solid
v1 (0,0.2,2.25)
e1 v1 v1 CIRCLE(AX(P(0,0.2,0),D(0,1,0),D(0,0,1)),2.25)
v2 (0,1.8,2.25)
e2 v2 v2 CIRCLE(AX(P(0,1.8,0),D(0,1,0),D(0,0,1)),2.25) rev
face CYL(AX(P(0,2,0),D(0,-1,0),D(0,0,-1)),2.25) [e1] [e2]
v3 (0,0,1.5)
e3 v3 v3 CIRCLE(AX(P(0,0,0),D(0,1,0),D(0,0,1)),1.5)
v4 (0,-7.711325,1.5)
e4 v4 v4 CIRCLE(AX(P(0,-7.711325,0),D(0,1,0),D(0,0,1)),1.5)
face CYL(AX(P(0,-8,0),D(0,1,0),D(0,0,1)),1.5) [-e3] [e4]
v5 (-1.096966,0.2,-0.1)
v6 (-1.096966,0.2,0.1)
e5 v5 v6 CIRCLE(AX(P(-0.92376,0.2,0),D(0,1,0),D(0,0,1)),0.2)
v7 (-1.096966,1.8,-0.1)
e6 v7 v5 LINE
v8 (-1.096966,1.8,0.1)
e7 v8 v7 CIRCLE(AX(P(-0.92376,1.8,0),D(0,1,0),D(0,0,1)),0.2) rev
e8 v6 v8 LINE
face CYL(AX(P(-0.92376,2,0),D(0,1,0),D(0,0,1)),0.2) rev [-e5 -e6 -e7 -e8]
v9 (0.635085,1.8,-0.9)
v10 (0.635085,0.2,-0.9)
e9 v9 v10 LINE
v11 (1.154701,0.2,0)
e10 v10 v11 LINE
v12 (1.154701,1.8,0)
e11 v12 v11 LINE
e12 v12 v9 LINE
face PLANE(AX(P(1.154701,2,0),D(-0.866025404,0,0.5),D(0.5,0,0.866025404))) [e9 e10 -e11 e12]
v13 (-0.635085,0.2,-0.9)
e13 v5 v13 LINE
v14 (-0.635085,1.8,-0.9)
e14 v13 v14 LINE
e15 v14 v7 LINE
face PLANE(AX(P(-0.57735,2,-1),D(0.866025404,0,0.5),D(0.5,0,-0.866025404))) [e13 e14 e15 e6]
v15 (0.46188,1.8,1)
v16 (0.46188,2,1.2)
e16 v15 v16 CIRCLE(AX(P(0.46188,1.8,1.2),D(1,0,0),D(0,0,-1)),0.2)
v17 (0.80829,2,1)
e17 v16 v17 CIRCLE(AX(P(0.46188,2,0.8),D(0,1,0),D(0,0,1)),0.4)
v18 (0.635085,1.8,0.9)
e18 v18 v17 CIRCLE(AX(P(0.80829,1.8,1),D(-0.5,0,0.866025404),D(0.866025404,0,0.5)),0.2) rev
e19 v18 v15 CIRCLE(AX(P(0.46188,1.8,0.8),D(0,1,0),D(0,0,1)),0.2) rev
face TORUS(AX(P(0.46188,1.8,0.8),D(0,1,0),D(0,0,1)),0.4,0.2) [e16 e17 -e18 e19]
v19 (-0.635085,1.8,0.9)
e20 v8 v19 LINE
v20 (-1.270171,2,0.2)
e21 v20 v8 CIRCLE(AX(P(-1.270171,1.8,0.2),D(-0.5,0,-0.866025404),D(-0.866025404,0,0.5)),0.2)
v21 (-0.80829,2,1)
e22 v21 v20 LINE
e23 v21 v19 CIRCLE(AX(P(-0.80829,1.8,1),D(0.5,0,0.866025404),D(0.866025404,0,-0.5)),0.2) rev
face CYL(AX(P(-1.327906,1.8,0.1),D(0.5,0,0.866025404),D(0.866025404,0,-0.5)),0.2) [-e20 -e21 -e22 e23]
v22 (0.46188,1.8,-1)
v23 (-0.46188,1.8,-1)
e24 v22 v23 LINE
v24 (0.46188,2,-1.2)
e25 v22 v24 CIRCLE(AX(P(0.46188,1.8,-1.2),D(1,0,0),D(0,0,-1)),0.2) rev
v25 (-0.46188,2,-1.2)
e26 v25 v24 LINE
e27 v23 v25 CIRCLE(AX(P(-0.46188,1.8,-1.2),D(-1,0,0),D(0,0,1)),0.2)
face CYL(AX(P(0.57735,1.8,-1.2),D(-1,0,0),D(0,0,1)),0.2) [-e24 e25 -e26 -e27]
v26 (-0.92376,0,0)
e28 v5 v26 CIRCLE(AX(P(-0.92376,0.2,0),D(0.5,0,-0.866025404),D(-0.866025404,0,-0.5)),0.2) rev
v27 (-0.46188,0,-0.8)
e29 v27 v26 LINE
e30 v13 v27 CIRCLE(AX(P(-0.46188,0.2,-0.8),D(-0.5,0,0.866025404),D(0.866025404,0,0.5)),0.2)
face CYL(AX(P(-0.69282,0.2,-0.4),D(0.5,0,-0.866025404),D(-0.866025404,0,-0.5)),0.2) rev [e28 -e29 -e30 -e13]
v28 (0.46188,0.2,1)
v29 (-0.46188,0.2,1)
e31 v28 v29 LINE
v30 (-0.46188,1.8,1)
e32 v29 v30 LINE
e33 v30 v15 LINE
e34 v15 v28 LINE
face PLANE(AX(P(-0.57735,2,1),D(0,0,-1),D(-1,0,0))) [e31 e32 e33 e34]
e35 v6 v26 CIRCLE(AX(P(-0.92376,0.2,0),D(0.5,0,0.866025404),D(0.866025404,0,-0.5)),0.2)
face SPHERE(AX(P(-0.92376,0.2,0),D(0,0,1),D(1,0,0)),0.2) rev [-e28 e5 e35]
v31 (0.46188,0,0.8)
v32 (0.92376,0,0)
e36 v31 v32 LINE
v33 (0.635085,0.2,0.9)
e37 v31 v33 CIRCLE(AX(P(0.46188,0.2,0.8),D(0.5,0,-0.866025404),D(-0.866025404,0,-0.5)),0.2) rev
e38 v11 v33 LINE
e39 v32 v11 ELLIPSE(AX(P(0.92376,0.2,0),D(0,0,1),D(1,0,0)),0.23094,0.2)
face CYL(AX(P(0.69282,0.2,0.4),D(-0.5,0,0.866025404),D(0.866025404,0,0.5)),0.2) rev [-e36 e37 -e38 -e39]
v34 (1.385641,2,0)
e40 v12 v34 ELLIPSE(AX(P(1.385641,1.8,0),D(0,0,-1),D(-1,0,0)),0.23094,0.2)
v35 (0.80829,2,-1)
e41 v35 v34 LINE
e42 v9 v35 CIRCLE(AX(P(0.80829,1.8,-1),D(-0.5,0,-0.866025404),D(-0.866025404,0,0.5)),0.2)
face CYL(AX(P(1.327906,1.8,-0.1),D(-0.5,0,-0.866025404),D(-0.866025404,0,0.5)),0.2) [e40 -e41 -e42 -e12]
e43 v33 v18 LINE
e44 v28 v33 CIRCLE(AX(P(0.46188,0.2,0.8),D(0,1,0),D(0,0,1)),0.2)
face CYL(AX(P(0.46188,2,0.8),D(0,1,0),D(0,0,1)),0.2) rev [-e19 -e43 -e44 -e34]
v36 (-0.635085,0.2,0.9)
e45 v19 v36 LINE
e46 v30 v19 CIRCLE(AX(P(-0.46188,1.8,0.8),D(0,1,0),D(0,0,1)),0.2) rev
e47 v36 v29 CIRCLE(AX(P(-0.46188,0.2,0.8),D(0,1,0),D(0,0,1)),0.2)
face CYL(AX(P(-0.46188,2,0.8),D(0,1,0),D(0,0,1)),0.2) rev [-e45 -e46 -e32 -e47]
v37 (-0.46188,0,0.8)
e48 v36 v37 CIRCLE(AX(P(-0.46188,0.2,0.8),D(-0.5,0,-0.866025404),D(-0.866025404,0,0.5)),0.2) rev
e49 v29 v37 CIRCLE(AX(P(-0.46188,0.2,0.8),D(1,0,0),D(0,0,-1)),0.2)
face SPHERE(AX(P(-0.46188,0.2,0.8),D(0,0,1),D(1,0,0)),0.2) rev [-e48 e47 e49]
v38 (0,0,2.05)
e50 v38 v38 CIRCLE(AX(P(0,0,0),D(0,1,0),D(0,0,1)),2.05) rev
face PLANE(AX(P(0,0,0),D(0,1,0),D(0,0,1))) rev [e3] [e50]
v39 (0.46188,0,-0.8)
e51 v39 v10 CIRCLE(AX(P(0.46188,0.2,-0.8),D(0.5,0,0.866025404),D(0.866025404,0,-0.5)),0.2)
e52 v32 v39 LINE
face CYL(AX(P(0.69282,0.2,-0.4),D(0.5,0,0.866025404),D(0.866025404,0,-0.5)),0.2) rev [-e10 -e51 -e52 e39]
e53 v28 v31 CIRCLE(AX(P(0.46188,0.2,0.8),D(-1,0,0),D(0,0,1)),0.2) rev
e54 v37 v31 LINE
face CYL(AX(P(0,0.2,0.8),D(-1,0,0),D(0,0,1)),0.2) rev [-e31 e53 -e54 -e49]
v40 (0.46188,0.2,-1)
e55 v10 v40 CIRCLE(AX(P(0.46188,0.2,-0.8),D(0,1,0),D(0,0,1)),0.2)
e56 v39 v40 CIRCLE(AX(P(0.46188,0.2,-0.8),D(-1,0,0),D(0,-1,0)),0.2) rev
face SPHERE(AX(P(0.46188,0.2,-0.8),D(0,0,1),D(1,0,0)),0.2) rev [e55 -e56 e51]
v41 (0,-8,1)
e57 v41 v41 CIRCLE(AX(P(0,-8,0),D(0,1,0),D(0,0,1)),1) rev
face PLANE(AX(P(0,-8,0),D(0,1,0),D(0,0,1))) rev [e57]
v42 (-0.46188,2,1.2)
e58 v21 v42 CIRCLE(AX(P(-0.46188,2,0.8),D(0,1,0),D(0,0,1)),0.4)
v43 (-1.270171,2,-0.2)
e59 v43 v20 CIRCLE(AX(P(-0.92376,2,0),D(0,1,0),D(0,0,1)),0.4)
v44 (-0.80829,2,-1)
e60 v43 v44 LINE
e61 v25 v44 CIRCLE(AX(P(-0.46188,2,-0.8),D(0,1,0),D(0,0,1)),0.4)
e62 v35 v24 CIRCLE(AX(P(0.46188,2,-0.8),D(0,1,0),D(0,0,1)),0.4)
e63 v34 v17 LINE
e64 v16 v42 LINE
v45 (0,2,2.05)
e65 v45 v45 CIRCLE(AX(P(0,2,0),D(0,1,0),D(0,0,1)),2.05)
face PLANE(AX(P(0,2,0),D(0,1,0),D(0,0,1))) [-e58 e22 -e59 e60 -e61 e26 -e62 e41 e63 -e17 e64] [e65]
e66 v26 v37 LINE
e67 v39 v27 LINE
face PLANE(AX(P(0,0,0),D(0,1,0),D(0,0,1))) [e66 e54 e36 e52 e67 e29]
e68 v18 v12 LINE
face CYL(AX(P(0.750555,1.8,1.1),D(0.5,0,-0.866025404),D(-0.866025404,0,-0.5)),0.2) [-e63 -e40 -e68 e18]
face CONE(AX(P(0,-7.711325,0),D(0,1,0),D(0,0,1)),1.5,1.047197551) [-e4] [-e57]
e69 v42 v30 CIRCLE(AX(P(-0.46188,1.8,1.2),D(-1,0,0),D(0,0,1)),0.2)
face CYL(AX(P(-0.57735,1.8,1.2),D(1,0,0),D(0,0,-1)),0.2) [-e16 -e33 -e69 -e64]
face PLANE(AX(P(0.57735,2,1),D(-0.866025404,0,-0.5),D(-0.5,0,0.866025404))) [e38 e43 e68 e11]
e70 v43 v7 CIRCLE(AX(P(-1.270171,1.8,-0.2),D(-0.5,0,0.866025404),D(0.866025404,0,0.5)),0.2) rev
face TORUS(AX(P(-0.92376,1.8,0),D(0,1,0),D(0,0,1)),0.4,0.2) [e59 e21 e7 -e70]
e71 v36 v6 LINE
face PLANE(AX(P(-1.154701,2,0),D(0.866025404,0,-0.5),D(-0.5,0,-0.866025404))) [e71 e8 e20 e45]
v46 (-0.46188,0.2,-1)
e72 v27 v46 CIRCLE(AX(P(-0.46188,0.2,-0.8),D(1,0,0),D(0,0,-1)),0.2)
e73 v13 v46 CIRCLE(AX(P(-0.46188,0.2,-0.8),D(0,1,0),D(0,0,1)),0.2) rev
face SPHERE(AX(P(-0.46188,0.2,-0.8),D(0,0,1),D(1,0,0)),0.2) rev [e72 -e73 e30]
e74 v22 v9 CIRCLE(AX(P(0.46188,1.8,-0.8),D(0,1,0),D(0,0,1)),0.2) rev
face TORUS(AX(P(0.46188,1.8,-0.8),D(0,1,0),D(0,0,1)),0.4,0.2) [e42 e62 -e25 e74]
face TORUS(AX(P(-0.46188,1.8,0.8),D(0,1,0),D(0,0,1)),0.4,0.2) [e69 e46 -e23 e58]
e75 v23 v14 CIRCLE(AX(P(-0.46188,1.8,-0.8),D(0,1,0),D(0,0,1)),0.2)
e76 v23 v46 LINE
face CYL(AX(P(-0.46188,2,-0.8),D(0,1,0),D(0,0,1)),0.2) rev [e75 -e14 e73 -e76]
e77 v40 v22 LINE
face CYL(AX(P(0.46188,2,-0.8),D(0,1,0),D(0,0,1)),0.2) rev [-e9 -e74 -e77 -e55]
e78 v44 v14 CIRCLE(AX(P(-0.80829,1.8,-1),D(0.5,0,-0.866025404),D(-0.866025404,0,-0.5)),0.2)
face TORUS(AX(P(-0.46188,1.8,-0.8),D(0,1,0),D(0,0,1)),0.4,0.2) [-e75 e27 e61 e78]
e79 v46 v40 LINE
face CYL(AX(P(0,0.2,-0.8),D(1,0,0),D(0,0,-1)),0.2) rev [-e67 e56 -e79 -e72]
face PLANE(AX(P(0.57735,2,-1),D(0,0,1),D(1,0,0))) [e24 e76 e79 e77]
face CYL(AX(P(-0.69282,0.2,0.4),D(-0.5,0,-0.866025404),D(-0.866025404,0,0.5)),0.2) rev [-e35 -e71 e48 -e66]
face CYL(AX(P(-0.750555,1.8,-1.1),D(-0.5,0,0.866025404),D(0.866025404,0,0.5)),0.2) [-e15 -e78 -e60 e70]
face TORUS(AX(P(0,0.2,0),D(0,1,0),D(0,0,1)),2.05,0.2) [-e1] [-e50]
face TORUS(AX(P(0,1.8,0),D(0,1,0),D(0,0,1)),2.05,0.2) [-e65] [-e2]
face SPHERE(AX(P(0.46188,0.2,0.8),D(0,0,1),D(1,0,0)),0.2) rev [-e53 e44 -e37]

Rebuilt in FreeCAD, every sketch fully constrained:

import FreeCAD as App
import Part
import Sketcher
from FreeCAD import Vector
Q = App.Units.Quantity


def edges_at(feature, points):
    """Names of the edges that pass closest to the given points."""
    edges = feature.Shape.Edges
    near = lambda p: min(range(len(edges)), key=lambda i: edges[i].distToShape(Part.Vertex(*p))[0])
    return sorted({f"Edge{near(p) + 1}" for p in points})

doc = App.newDocument("Part")
body = doc.addObject("PartDesign::Body", "Body")

# Sketch on XZ plane
sketch1 = body.newObject("Sketcher::SketchObject", "Sketch")
sketch1.AttachmentSupport = (doc.getObject("XZ_Plane"), [""])
sketch1.MapMode = "FlatFace"
sketch1.addGeometry([
    Part.Circle(Vector(0, 0, 0), Vector(0, 0, 1), 2.2),  # 0
    Part.LineSegment(Vector(-1.2, 0, 0), Vector(-0.6, -1, 0)),  # 1
    Part.LineSegment(Vector(-0.6, -1, 0), Vector(0.6, -1, 0)),  # 2
    Part.LineSegment(Vector(0.6, -1, 0), Vector(1.2, 0, 0)),  # 3
    Part.LineSegment(Vector(1.2, 0, 0), Vector(0.6, 1, 0)),  # 4
    Part.LineSegment(Vector(0.6, 1, 0), Vector(-0.6, 1, 0)),  # 5
    Part.LineSegment(Vector(-0.6, 1, 0), Vector(-1.2, 0, 0)),  # 6
], False)
sketch1.addConstraint([
    Sketcher.Constraint("Coincident", 1, 2, 2, 1),
    Sketcher.Constraint("Coincident", 2, 2, 3, 1),
    Sketcher.Constraint("Coincident", 3, 2, 4, 1),
    Sketcher.Constraint("Coincident", 4, 2, 5, 1),
    Sketcher.Constraint("Coincident", 5, 2, 6, 1),
    Sketcher.Constraint("Coincident", 6, 2, 1, 1),
    Sketcher.Constraint("Horizontal", 2),
    Sketcher.Constraint("Horizontal", 5),
    Sketcher.Constraint("Coincident", 0, 3, -1, 1),
    Sketcher.Constraint("Symmetric", 1, 2, 4, 2, -1, 1),
    Sketcher.Constraint("Symmetric", 3, 2, 6, 2, -1, 1),
    Sketcher.Constraint("PointOnObject", 3, 2, -1),
    Sketcher.Constraint("Parallel", 3, 6),
    Sketcher.Constraint("Vertical", 2, 2, 4, 2),
    Sketcher.Constraint("Diameter", 0, Q("4.5 mm")),
    Sketcher.Constraint("Angle", 1, Q("-60 deg")),
    Sketcher.Constraint("DistanceY", 1, 2, -1, 1, Q("1 mm")),
    Sketcher.Constraint("DistanceX", 2, 1, 2, 2, Q("1.154701 mm")),
])
pad1 = body.newObject("PartDesign::Pad", "Pad")
pad1.Profile = sketch1
pad1.Length = 2
pad1.Reversed = True

# Sketch on XZ plane
sketch2 = body.newObject("Sketcher::SketchObject", "Sketch001")
sketch2.AttachmentSupport = (doc.getObject("XZ_Plane"), [""])
sketch2.MapMode = "FlatFace"
sketch2.addGeometry(Part.Circle(Vector(0, 0, 0), Vector(0, 0, 1), 1.5), False)
sketch2.addConstraint([
    Sketcher.Constraint("Coincident", 0, 3, -1, 1),
    Sketcher.Constraint("Diameter", 0, Q("3 mm")),
])
pad2 = body.newObject("PartDesign::Pad", "Pad001")
pad2.Profile = sketch2
pad2.Length = 8
doc.recompute()

chamfer = body.newObject("PartDesign::Chamfer", "Chamfer")
chamfer.Base = (pad2, edges_at(pad2, [(0, -8, -1.5)]))
chamfer.ChamferType = "Two distances"
chamfer.Size = 0.5
chamfer.Size2 = 0.288675
chamfer.FlipDirection = True
doc.recompute()

fillet = body.newObject("PartDesign::Fillet", "Fillet")
fillet.Base = (chamfer, edges_at(chamfer, [
    (-0.577, 1, -1),
    (-0.866, 0, 0.5),
    (-1.155, 1, 0),
    (0, 0, 1),
    (-0.577, 1, 1),
    (0.866, 0, 0.5),
    (0.577, 1, 1),
    (0.866, 0, -0.5),
    (0, 2, -1),
    (-0.866, 2, -0.5),
    (-0.866, 2, 0.5),
    (0, 2, 1),
    (0.866, 2, 0.5),
    (0.866, 2, -0.5),
    (0, 0, -2.25),
    (0, 2, -2.25),
    (0, 0, -1),
    (0.577, 1, -1),
    (-0.866, 0, -0.5),
]))
fillet.Radius = 0.2

doc.recompute()
